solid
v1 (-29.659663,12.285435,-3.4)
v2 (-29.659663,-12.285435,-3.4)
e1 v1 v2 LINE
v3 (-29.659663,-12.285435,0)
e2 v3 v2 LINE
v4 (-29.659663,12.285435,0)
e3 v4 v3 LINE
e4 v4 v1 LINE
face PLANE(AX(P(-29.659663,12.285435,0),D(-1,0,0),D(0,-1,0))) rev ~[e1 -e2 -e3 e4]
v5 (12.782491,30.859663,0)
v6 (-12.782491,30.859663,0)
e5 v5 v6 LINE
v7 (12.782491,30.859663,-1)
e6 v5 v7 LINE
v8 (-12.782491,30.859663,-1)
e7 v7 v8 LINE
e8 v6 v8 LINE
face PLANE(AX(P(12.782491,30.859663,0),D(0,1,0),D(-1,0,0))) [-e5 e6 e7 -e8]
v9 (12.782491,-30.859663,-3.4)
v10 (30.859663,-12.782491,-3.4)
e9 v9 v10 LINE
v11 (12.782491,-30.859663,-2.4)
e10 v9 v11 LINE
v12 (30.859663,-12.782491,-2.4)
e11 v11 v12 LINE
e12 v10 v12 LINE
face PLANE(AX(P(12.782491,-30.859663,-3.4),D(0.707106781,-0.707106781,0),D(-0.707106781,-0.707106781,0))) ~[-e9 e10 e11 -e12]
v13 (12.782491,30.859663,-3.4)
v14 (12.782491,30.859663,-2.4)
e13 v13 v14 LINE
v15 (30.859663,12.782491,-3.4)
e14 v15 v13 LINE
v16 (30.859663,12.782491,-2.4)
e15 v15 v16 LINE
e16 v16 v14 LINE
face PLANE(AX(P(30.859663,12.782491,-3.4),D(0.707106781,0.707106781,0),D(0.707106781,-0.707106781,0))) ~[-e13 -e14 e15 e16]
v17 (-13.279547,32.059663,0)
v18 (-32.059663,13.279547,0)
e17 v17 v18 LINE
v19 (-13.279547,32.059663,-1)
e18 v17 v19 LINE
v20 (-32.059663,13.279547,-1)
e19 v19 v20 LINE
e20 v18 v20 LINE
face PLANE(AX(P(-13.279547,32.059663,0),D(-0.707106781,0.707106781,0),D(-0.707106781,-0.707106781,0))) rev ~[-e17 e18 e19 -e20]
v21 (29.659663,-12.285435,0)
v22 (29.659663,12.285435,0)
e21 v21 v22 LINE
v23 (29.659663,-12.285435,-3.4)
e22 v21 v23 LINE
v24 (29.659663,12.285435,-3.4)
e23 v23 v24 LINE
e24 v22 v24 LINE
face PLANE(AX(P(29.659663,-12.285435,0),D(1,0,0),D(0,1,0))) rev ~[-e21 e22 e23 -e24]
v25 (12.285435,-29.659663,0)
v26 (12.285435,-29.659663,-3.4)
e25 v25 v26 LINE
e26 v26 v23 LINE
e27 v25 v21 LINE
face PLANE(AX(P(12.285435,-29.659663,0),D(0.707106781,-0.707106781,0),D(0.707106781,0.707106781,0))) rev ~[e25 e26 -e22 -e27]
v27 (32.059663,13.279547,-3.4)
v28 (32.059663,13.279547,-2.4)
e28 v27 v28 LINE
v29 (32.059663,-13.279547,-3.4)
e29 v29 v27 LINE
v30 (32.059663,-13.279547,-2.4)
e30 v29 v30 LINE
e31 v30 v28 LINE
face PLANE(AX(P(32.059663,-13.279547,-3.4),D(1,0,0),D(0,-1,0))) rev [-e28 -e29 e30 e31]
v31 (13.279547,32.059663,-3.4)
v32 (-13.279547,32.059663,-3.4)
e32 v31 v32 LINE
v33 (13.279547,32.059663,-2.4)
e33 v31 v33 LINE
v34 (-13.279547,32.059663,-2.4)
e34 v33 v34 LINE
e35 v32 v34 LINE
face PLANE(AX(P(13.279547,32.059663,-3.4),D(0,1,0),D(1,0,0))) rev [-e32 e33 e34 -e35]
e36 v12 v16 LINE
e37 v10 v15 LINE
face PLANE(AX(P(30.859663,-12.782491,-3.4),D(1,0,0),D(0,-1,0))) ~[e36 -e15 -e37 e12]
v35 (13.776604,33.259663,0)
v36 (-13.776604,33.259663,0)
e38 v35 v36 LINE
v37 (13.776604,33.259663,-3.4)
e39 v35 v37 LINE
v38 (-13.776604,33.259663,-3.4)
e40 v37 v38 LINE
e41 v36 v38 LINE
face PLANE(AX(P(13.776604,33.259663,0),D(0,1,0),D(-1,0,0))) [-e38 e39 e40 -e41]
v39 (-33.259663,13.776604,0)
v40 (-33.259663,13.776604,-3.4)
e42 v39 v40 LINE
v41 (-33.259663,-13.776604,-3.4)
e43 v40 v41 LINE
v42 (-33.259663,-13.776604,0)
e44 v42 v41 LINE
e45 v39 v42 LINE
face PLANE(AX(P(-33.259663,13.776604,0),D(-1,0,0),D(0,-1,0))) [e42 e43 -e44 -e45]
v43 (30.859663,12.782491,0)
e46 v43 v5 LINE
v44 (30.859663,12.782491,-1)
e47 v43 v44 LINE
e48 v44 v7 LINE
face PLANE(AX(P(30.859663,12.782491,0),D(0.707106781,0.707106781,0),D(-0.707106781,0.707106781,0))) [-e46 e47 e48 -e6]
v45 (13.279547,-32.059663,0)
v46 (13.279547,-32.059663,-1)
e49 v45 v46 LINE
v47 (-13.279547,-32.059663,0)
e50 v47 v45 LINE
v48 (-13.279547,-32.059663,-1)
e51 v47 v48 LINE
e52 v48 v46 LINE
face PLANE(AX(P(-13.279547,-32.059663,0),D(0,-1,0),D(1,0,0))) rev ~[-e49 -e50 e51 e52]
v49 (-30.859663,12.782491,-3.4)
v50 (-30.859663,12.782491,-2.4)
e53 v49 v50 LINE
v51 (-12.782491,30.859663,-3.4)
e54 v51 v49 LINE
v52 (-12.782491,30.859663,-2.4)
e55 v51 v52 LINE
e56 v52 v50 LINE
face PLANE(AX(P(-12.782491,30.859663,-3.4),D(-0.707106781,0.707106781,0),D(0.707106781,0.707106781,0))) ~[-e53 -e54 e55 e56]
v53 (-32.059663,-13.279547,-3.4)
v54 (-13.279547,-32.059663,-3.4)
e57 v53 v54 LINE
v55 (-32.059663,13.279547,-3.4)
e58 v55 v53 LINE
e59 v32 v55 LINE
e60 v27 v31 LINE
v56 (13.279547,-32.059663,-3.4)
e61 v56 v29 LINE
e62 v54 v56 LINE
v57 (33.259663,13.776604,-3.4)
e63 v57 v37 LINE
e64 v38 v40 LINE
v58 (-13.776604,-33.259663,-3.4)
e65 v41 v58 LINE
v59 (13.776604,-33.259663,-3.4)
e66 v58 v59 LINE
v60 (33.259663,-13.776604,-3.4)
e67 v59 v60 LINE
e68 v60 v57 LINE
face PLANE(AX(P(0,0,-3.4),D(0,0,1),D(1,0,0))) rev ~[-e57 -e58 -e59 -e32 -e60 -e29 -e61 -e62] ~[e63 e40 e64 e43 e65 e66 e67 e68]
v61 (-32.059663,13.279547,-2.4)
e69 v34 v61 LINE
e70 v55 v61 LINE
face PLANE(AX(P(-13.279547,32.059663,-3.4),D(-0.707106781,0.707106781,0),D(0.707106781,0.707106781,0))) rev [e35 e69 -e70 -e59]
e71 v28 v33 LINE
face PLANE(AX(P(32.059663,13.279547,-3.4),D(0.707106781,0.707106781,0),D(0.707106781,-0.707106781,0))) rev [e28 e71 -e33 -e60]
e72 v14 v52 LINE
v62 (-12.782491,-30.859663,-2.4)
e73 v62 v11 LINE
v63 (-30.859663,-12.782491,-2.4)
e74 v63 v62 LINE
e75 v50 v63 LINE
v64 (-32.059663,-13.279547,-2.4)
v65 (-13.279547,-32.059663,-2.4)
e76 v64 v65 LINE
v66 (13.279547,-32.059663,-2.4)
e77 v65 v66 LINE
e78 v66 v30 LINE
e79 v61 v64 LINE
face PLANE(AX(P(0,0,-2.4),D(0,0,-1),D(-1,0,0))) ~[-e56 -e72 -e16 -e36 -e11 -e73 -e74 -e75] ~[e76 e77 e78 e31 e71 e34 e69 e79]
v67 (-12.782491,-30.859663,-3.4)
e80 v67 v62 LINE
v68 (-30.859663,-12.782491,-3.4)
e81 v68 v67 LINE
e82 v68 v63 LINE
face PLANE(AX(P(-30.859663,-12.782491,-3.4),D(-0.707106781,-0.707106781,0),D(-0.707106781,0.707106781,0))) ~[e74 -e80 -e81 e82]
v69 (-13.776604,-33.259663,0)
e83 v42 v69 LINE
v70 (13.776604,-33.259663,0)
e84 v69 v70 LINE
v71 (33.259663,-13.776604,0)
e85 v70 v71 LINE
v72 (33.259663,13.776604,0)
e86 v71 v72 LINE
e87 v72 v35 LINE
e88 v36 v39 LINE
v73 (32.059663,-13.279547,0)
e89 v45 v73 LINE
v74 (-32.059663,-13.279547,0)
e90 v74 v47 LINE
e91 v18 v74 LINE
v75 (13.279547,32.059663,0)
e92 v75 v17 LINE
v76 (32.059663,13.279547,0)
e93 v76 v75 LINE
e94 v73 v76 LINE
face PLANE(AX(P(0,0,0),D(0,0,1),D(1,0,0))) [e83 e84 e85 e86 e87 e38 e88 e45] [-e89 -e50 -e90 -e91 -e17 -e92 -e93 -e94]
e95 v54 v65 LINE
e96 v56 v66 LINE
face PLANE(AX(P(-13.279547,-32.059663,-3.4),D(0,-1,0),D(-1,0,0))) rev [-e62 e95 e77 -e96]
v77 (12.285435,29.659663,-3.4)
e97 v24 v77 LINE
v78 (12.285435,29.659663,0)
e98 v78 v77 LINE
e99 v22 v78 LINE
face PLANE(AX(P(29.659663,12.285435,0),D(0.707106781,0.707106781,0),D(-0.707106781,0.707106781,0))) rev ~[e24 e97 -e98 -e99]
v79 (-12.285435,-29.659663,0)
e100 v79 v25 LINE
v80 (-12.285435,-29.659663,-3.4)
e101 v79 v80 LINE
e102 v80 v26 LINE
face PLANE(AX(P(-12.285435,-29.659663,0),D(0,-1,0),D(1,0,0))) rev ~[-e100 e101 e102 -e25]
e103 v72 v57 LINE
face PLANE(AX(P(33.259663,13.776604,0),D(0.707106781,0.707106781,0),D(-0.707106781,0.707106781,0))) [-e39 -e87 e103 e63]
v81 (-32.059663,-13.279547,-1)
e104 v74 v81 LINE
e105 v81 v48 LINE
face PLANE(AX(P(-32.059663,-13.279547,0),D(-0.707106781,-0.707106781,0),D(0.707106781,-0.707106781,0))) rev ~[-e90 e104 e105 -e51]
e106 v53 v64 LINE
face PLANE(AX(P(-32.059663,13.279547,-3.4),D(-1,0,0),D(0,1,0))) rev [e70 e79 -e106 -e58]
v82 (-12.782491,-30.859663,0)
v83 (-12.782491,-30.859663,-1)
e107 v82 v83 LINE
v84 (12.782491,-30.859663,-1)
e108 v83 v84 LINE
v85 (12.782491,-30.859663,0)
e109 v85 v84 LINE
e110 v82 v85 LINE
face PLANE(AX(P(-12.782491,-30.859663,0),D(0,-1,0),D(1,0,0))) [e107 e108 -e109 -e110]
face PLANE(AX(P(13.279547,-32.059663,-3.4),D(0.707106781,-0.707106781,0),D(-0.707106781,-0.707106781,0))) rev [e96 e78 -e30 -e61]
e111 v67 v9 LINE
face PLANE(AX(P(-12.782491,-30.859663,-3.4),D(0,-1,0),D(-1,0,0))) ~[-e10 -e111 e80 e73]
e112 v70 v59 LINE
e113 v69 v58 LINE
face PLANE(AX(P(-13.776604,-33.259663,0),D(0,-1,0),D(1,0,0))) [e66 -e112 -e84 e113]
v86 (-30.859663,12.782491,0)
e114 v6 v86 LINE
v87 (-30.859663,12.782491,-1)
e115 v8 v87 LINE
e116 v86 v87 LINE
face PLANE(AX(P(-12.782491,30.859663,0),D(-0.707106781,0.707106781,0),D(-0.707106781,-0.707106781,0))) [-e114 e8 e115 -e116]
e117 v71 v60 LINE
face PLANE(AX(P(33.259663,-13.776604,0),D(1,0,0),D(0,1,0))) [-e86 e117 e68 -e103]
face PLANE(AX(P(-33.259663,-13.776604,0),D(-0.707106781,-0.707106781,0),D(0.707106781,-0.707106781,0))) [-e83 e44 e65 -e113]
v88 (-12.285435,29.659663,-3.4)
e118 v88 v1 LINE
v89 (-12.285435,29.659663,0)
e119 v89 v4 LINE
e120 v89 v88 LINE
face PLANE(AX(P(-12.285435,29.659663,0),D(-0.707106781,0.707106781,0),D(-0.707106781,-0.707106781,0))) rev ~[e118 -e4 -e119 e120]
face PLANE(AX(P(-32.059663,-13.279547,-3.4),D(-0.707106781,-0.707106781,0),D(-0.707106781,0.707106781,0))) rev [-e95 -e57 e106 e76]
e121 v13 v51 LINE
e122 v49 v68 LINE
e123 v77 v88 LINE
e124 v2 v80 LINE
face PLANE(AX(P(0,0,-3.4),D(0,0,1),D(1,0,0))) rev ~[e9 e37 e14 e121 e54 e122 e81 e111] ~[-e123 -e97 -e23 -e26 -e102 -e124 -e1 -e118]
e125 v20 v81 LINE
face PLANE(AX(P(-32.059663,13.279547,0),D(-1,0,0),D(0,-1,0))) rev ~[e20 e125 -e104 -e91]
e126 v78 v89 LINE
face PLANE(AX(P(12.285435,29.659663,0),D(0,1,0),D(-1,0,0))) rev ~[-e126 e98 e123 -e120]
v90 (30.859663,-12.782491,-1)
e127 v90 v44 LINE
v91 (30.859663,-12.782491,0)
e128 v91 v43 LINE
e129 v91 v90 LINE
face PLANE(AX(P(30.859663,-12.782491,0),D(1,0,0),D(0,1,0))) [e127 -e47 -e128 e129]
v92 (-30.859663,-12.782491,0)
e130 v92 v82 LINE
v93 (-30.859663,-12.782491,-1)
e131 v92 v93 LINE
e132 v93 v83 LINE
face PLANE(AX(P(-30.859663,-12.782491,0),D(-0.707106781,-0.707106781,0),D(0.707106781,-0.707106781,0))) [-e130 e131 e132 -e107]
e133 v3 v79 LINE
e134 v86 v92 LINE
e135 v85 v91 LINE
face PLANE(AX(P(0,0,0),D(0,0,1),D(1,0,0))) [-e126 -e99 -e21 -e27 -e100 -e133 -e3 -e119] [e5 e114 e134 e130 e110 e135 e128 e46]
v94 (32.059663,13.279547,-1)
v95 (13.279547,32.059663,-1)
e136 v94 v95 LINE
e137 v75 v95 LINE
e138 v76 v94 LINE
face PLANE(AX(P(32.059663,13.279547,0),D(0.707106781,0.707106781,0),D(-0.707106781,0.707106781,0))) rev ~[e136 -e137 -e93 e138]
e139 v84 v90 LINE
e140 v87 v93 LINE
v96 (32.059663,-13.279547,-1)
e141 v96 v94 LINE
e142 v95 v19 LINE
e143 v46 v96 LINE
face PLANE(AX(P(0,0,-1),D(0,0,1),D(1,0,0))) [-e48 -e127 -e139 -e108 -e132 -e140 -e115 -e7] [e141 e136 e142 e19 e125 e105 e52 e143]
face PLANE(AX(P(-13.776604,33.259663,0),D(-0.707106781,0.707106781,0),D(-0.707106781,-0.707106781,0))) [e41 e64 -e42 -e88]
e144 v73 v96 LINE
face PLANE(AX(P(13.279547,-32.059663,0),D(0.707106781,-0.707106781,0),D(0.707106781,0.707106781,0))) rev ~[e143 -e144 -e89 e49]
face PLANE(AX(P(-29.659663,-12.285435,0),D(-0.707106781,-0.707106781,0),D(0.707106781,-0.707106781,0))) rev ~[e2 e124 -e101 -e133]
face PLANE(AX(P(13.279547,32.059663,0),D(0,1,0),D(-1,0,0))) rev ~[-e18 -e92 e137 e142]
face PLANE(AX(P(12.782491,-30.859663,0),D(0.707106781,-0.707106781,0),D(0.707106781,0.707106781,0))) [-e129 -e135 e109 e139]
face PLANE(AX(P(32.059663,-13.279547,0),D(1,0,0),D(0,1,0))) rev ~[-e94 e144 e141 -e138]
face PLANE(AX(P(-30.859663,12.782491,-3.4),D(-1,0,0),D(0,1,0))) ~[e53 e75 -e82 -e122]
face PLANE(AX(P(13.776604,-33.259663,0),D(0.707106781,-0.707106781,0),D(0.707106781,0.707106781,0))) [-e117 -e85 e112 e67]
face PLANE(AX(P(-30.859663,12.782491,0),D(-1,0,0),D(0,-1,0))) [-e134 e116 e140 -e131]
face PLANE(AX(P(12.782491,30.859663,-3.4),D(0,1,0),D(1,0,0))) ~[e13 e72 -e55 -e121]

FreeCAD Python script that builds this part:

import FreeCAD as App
import Part
import Sketcher

V = App.Vector

doc = App.newDocument("Part")
body = doc.addObject("PartDesign::Body", "Body")

# Sketch on XY plane
sketch1 = body.newObject("Sketcher::SketchObject", "Sketch")
sketch1.AttachmentSupport = (doc.getObject("XY_Plane"), [""])
sketch1.MapMode = "FlatFace"
sketch1.addGeometry(Part.LineSegment(V(-33.259663, -13.776604, 0), V(-13.776604, -33.259663, 0)), False)
sketch1.addGeometry(Part.LineSegment(V(-13.776604, -33.259663, 0), V(13.776604, -33.259663, 0)), False)
sketch1.addGeometry(Part.LineSegment(V(13.776604, -33.259663, 0), V(33.259663, -13.776604, 0)), False)
sketch1.addGeometry(Part.LineSegment(V(33.259663, -13.776604, 0), V(33.259663, 13.776604, 0)), False)
sketch1.addGeometry(Part.LineSegment(V(33.259663, 13.776604, 0), V(13.776604, 33.259663, 0)), False)
sketch1.addGeometry(Part.LineSegment(V(13.776604, 33.259663, 0), V(-13.776604, 33.259663, 0)), False)
sketch1.addGeometry(Part.LineSegment(V(-13.776604, 33.259663, 0), V(-33.259663, 13.776604, 0)), False)
sketch1.addGeometry(Part.LineSegment(V(-33.259663, 13.776604, 0), V(-33.259663, -13.776604, 0)), False)
sketch1.addGeometry(Part.LineSegment(V(12.285435, -29.659663, 0), V(-12.285435, -29.659663, 0)), False)
sketch1.addGeometry(Part.LineSegment(V(-12.285435, -29.659663, 0), V(-29.659663, -12.285435, 0)), False)
sketch1.addGeometry(Part.LineSegment(V(-29.659663, -12.285435, 0), V(-29.659663, 12.285435, 0)), False)
sketch1.addGeometry(Part.LineSegment(V(-29.659663, 12.285435, 0), V(-12.285435, 29.659663, 0)), False)
sketch1.addGeometry(Part.LineSegment(V(-12.285435, 29.659663, 0), V(12.285435, 29.659663, 0)), False)
sketch1.addGeometry(Part.LineSegment(V(12.285435, 29.659663, 0), V(29.659663, 12.285435, 0)), False)
sketch1.addGeometry(Part.LineSegment(V(29.659663, 12.285435, 0), V(29.659663, -12.285435, 0)), False)
sketch1.addGeometry(Part.LineSegment(V(29.659663, -12.285435, 0), V(12.285435, -29.659663, 0)), False)
sketch1.addConstraint(Sketcher.Constraint("Coincident", 0, 2, 1, 1))
sketch1.addConstraint(Sketcher.Constraint("Coincident", 1, 2, 2, 1))
sketch1.addConstraint(Sketcher.Constraint("Coincident", 2, 2, 3, 1))
sketch1.addConstraint(Sketcher.Constraint("Coincident", 3, 2, 4, 1))
sketch1.addConstraint(Sketcher.Constraint("Coincident", 4, 2, 5, 1))
sketch1.addConstraint(Sketcher.Constraint("Coincident", 5, 2, 6, 1))
sketch1.addConstraint(Sketcher.Constraint("Coincident", 6, 2, 7, 1))
sketch1.addConstraint(Sketcher.Constraint("Coincident", 7, 2, 0, 1))
sketch1.addConstraint(Sketcher.Constraint("Coincident", 8, 2, 9, 1))
sketch1.addConstraint(Sketcher.Constraint("Coincident", 9, 2, 10, 1))
sketch1.addConstraint(Sketcher.Constraint("Coincident", 10, 2, 11, 1))
sketch1.addConstraint(Sketcher.Constraint("Coincident", 11, 2, 12, 1))
sketch1.addConstraint(Sketcher.Constraint("Coincident", 12, 2, 13, 1))
sketch1.addConstraint(Sketcher.Constraint("Coincident", 13, 2, 14, 1))
sketch1.addConstraint(Sketcher.Constraint("Coincident", 14, 2, 15, 1))
sketch1.addConstraint(Sketcher.Constraint("Coincident", 15, 2, 8, 1))
sketch1.addConstraint(Sketcher.Constraint("Horizontal", 1))
sketch1.addConstraint(Sketcher.Constraint("Vertical", 3))
sketch1.addConstraint(Sketcher.Constraint("Horizontal", 5))
sketch1.addConstraint(Sketcher.Constraint("Vertical", 7))
sketch1.addConstraint(Sketcher.Constraint("Horizontal", 8))
sketch1.addConstraint(Sketcher.Constraint("Vertical", 10))
sketch1.addConstraint(Sketcher.Constraint("Horizontal", 12))
sketch1.addConstraint(Sketcher.Constraint("Vertical", 14))
sketch1.addConstraint(Sketcher.Constraint("Symmetric", 0, 2, 4, 2, -1, 1))
sketch1.addConstraint(Sketcher.Constraint("Symmetric", 2, 2, 6, 2, -1, 1))
sketch1.addConstraint(Sketcher.Constraint("Symmetric", 8, 2, 12, 2, -1, 1))
sketch1.addConstraint(Sketcher.Constraint("Symmetric", 9, 2, 13, 2, -1, 1))
sketch1.addConstraint(Sketcher.Constraint("Perpendicular", 0, 2))
sketch1.addConstraint(Sketcher.Constraint("Perpendicular", 2, 4))
sketch1.addConstraint(Sketcher.Constraint("Perpendicular", 4, 6))
sketch1.addConstraint(Sketcher.Constraint("Perpendicular", 6, 9))
sketch1.addConstraint(Sketcher.Constraint("Perpendicular", 9, 11))
sketch1.addConstraint(Sketcher.Constraint("Perpendicular", 13, 15))
sketch1.addConstraint(Sketcher.Constraint("Horizontal", 3, 2, 6, 2))
sketch1.addConstraint(Sketcher.Constraint("Horizontal", 10, 2, 13, 2))
sketch1.addConstraint(Sketcher.Constraint("Horizontal", 9, 2, 14, 2))
sketch1.addConstraint(Sketcher.Constraint("Vertical", 1, 2, 4, 2))
sketch1.addConstraint(Sketcher.Constraint("Equal", 5, 3))
sketch1.addConstraint(Sketcher.Constraint("Equal", 12, 10))
sketch1.addConstraint(Sketcher.Constraint("DistanceY", 0, 2, 8, 2, 3.6))
sketch1.addConstraint(Sketcher.Constraint("DistanceX", 8, 2, 8, 1, 24.570869))
sketch1.addConstraint(Sketcher.Constraint("Distance", 9, 24.570869))
sketch1.addConstraint(Sketcher.Constraint("DistanceX", 1, 1, 1, 2, 27.553207))
pad1 = body.newObject("PartDesign::Pad", "Pad")
pad1.Profile = sketch1
pad1.Length = 3.4
pad1.Reversed = True

# Sketch on XY plane
sketch2 = body.newObject("Sketcher::SketchObject", "Sketch001")
sketch2.AttachmentSupport = (doc.getObject("XY_Plane"), [""])
sketch2.MapMode = "FlatFace"
sketch2.addGeometry(Part.LineSegment(V(13.279547, -32.059663, 0), V(32.059663, -13.279547, 0)), False)
sketch2.addGeometry(Part.LineSegment(V(32.059663, -13.279547, 0), V(32.059663, 13.279547, 0)), False)
sketch2.addGeometry(Part.LineSegment(V(32.059663, 13.279547, 0), V(13.279547, 32.059663, 0)), False)
sketch2.addGeometry(Part.LineSegment(V(13.279547, 32.059663, 0), V(-13.279547, 32.059663, 0)), False)
sketch2.addGeometry(Part.LineSegment(V(-13.279547, 32.059663, 0), V(-32.059663, 13.279547, 0)), False)
sketch2.addGeometry(Part.LineSegment(V(-32.059663, 13.279547, 0), V(-32.059663, -13.279547, 0)), False)
sketch2.addGeometry(Part.LineSegment(V(-32.059663, -13.279547, 0), V(-13.279547, -32.059663, 0)), False)
sketch2.addGeometry(Part.LineSegment(V(-13.279547, -32.059663, 0), V(13.279547, -32.059663, 0)), False)
sketch2.addGeometry(Part.LineSegment(V(30.859663, -12.782491, 0), V(12.782491, -30.859663, 0)), False)
sketch2.addGeometry(Part.LineSegment(V(12.782491, -30.859663, 0), V(-12.782491, -30.859663, 0)), False)
sketch2.addGeometry(Part.LineSegment(V(-12.782491, -30.859663, 0), V(-30.859663, -12.782491, 0)), False)
sketch2.addGeometry(Part.LineSegment(V(-30.859663, -12.782491, 0), V(-30.859663, 12.782491, 0)), False)
sketch2.addGeometry(Part.LineSegment(V(-30.859663, 12.782491, 0), V(-12.782491, 30.859663, 0)), False)
sketch2.addGeometry(Part.LineSegment(V(-12.782491, 30.859663, 0), V(12.782491, 30.859663, 0)), False)
sketch2.addGeometry(Part.LineSegment(V(12.782491, 30.859663, 0), V(30.859663, 12.782491, 0)), False)
sketch2.addGeometry(Part.LineSegment(V(30.859663, 12.782491, 0), V(30.859663, -12.782491, 0)), False)
sketch2.addConstraint(Sketcher.Constraint("Coincident", 0, 2, 1, 1))
sketch2.addConstraint(Sketcher.Constraint("Coincident", 1, 2, 2, 1))
sketch2.addConstraint(Sketcher.Constraint("Coincident", 2, 2, 3, 1))
sketch2.addConstraint(Sketcher.Constraint("Coincident", 3, 2, 4, 1))
sketch2.addConstraint(Sketcher.Constraint("Coincident", 4, 2, 5, 1))
sketch2.addConstraint(Sketcher.Constraint("Coincident", 5, 2, 6, 1))
sketch2.addConstraint(Sketcher.Constraint("Coincident", 6, 2, 7, 1))
sketch2.addConstraint(Sketcher.Constraint("Coincident", 7, 2, 0, 1))
sketch2.addConstraint(Sketcher.Constraint("Coincident", 8, 2, 9, 1))
sketch2.addConstraint(Sketcher.Constraint("Coincident", 9, 2, 10, 1))
sketch2.addConstraint(Sketcher.Constraint("Coincident", 10, 2, 11, 1))
sketch2.addConstraint(Sketcher.Constraint("Coincident", 11, 2, 12, 1))
sketch2.addConstraint(Sketcher.Constraint("Coincident", 12, 2, 13, 1))
sketch2.addConstraint(Sketcher.Constraint("Coincident", 13, 2, 14, 1))
sketch2.addConstraint(Sketcher.Constraint("Coincident", 14, 2, 15, 1))
sketch2.addConstraint(Sketcher.Constraint("Coincident", 15, 2, 8, 1))
sketch2.addConstraint(Sketcher.Constraint("Vertical", 1))
sketch2.addConstraint(Sketcher.Constraint("Horizontal", 3))
sketch2.addConstraint(Sketcher.Constraint("Vertical", 5))
sketch2.addConstraint(Sketcher.Constraint("Horizontal", 7))
sketch2.addConstraint(Sketcher.Constraint("Horizontal", 9))
sketch2.addConstraint(Sketcher.Constraint("Vertical", 11))
sketch2.addConstraint(Sketcher.Constraint("Horizontal", 13))
sketch2.addConstraint(Sketcher.Constraint("Vertical", 15))
sketch2.addConstraint(Sketcher.Constraint("Symmetric", 0, 2, 4, 2, -1, 1))
sketch2.addConstraint(Sketcher.Constraint("Symmetric", 2, 2, 6, 2, -1, 1))
sketch2.addConstraint(Sketcher.Constraint("Symmetric", 8, 2, 12, 2, -1, 1))
sketch2.addConstraint(Sketcher.Constraint("Symmetric", 10, 2, 14, 2, -1, 1))
sketch2.addConstraint(Sketcher.Constraint("Perpendicular", 0, 2))
sketch2.addConstraint(Sketcher.Constraint("Perpendicular", 2, 4))
sketch2.addConstraint(Sketcher.Constraint("Perpendicular", 4, 6))
sketch2.addConstraint(Sketcher.Constraint("Perpendicular", 6, 8))
sketch2.addConstraint(Sketcher.Constraint("Perpendicular", 8, 10))
sketch2.addConstraint(Sketcher.Constraint("Perpendicular", 10, 12))
sketch2.addConstraint(Sketcher.Constraint("Perpendicular", 12, 14))
sketch2.addConstraint(Sketcher.Constraint("Horizontal", 1, 2, 4, 2))
sketch2.addConstraint(Sketcher.Constraint("Horizontal", 11, 2, 14, 2))
sketch2.addConstraint(Sketcher.Constraint("Vertical", 3, 2, 6, 2))
sketch2.addConstraint(Sketcher.Constraint("Equal", 7, 1))
sketch2.addConstraint(Sketcher.Constraint("Equal", 13, 11))
sketch2.addConstraint(Sketcher.Constraint("DistanceY", 7, 2, 8, 2, 1.2))
sketch2.addConstraint(Sketcher.Constraint("DistanceX", 3, 2, 3, 1, 26.559095))
sketch2.addConstraint(Sketcher.Constraint("DistanceX", 9, 2, 9, 1, 25.564982))
sketch2.addConstraint(Sketcher.Constraint("DistanceY", 0, 2, 2, 2, 45.33921))
pocket1 = body.newObject("PartDesign::Pocket", "Pocket")
pocket1.Profile = sketch2
pocket1.Length = 1
doc.recompute()

datumplane = body.newObject("PartDesign::Plane", "DatumPlane")
datumplane.AttachmentSupport = (doc.getObject("XY_Plane"), [""])
datumplane.MapMode = "FlatFace"
datumplane.AttachmentOffset = App.Placement(V(0, 0, -1.7), App.Rotation())
mirrored = body.newObject("PartDesign::Mirrored", "Mirrored")
mirrored.Originals = [pocket1]
mirrored.MirrorPlane = (datumplane, [""])
body.Tip = mirrored

doc.recompute()
